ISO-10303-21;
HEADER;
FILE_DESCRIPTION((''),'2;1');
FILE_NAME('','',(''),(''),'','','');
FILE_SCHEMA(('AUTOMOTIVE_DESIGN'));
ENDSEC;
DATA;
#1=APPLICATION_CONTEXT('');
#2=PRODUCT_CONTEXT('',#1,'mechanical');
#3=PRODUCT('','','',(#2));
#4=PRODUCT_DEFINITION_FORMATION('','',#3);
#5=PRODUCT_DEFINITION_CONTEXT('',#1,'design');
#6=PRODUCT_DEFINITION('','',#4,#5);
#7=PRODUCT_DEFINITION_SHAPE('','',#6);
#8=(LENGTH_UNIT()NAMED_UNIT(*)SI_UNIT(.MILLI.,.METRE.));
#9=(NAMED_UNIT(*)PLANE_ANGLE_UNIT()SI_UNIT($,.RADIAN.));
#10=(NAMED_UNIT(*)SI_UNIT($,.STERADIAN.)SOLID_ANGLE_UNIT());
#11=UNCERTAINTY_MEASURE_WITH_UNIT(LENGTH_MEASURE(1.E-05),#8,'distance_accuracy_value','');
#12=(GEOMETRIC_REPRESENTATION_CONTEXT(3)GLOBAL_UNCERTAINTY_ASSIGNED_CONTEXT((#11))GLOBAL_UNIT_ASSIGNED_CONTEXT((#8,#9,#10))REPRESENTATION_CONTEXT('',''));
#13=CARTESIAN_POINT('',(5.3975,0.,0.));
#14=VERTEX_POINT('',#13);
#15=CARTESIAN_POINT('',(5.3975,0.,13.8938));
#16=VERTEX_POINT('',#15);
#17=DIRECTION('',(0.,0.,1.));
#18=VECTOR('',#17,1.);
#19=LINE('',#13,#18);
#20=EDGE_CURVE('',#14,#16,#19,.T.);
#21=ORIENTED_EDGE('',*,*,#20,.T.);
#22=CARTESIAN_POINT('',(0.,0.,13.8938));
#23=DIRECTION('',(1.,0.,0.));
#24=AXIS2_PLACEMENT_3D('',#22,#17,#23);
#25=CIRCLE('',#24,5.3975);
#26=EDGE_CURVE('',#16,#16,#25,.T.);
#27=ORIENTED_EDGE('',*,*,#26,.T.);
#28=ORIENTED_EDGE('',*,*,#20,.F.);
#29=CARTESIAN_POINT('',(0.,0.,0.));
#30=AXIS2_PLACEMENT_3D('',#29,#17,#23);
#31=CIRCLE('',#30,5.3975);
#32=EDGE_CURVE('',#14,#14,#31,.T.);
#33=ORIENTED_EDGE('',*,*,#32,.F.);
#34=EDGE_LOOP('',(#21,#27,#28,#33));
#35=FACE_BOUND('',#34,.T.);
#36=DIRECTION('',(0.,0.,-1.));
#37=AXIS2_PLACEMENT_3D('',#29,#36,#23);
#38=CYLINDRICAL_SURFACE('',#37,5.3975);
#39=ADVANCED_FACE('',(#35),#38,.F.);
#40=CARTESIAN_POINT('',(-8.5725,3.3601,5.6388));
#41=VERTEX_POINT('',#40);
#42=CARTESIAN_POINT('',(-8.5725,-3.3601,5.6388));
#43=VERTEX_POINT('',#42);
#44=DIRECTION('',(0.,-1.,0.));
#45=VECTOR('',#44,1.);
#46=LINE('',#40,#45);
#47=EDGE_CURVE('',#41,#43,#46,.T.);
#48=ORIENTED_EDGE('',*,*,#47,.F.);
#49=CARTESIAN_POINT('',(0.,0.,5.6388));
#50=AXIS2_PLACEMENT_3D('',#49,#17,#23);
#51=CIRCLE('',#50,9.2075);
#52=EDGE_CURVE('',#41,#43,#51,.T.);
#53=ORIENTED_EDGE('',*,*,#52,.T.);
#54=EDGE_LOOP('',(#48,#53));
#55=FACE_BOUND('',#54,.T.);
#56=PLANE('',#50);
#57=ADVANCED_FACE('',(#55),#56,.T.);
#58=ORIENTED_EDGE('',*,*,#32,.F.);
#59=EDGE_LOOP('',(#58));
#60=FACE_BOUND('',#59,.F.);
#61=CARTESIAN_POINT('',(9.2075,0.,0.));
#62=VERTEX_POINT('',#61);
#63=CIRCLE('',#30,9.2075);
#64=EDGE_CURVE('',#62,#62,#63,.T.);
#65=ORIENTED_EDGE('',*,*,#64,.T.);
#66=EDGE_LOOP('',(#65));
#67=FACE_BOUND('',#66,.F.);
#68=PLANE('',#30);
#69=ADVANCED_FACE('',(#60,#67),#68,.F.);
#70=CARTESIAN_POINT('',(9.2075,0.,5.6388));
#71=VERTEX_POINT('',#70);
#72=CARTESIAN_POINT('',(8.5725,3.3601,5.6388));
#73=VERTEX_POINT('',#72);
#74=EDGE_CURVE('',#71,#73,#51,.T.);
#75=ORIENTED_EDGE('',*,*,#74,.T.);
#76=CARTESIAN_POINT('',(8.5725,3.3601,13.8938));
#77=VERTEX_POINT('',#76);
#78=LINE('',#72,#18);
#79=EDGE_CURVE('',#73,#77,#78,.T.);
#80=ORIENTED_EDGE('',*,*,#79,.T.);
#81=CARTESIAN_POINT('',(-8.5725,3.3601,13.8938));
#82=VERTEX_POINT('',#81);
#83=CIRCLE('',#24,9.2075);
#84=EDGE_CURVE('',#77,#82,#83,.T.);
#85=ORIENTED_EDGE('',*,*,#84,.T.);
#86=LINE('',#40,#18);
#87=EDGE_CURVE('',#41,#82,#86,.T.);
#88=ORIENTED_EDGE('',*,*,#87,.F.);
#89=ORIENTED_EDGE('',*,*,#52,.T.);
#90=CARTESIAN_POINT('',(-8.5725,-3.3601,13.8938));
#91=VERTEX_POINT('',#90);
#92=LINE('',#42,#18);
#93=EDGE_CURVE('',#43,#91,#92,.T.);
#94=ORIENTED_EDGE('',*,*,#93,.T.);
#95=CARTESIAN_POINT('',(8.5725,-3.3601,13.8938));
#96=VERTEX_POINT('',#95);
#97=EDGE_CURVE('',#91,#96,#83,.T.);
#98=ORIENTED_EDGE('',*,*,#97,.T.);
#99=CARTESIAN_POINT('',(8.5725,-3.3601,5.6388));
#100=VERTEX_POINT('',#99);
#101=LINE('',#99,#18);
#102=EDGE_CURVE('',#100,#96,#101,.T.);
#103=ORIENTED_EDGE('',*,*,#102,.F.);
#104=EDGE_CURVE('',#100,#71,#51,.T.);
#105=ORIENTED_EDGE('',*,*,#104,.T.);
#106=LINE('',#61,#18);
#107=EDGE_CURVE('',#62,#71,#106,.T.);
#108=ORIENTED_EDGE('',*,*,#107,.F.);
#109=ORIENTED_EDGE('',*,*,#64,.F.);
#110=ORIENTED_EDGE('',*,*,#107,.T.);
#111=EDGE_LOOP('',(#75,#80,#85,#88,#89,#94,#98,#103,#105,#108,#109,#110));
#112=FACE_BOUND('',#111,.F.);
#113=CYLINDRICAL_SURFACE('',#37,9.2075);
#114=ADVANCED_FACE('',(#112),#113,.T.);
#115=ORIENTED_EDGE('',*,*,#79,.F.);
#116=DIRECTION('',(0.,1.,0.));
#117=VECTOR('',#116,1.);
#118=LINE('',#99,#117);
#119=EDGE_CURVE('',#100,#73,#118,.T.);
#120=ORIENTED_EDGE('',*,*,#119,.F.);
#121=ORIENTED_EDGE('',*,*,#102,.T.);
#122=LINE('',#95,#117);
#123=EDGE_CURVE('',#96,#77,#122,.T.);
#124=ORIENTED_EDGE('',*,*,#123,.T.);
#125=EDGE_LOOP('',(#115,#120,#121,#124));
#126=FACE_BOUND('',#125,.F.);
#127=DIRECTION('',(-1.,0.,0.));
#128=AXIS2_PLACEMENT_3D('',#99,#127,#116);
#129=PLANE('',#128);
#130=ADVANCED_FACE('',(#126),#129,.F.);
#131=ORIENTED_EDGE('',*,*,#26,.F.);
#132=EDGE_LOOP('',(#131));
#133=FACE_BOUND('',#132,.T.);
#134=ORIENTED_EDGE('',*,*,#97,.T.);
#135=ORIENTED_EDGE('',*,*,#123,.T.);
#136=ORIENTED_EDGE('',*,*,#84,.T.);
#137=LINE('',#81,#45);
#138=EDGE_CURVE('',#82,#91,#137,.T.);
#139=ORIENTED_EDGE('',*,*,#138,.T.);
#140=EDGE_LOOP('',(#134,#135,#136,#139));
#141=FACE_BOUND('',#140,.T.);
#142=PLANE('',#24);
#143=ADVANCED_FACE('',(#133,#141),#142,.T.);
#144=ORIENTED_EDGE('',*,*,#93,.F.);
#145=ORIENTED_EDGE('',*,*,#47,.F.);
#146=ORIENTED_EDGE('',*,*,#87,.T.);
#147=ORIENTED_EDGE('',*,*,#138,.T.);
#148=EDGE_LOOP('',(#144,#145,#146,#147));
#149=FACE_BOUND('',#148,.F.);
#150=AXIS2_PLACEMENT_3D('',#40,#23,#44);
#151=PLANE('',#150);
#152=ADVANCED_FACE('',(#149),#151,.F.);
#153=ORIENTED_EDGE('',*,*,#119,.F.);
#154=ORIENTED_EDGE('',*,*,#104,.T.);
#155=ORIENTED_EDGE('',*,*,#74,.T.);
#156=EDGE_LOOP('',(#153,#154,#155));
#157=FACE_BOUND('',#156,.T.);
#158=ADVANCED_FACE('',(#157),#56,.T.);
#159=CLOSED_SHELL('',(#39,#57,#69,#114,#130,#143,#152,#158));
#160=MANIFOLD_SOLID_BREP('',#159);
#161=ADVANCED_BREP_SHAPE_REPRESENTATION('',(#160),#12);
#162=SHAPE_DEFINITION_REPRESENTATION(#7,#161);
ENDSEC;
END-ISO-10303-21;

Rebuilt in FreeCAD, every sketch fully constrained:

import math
import FreeCAD as App
import Part
import Sketcher

V = App.Vector
Q = App.Units.Quantity

doc = App.newDocument("Part")
body = doc.addObject("PartDesign::Body", "Body")

# Sketch on XY plane
sketch1 = doc.addObject("Sketcher::SketchObject", "Sketch")
body.addObject(sketch1)
sketch1.AttachmentSupport = (doc.XY_Plane, [""])
sketch1.MapMode = "FlatFace"
sketch1.addGeometry([
    Part.Circle(V(0, 0, 0), V(0, 0, 1), 9),
    Part.Circle(V(0, 0, 0), V(0, 0, 1), 5),
], False)
sketch1.addConstraint([
    Sketcher.Constraint("Coincident", 0, 3, -1, 1),
    Sketcher.Constraint("Coincident", 1, 3, -1, 1),
    Sketcher.Constraint("Diameter", 0, Q("0.725 in")),
    Sketcher.Constraint("Diameter", 1, Q("0.425 in")),
])
pad1 = doc.addObject("PartDesign::Pad", "Pad")
body.addObject(pad1)
pad1.Profile = sketch1
pad1.Length = Q("0.222 in")

# Sketch on XY plane
sketch2 = doc.addObject("Sketcher::SketchObject", "Sketch001")
body.addObject(sketch2)
sketch2.AttachmentSupport = (doc.XY_Plane, [""])
sketch2.MapMode = "FlatFace"
sketch2.AttachmentOffset = App.Placement(V(0, 0, 0.222 * 25.4), App.Rotation())
sketch2.addGeometry([
    Part.LineSegment(V(9, -3, 0), V(9, 3, 0)),  # 0
    Part.ArcOfCircle(Part.Circle(V(0, 0, 0), V(0, 0, 1), 9), math.radians(21), math.radians(159)),  # 1
    Part.LineSegment(V(-9, 3, 0), V(-9, -3, 0)),  # 2
    Part.ArcOfCircle(Part.Circle(V(0, 0, 0), V(0, 0, 1), 9), math.radians(-159), math.radians(-21)),  # 3
    Part.Circle(V(0, 0, 0), V(0, 0, 1), 5),  # 4
], False)
sketch2.addConstraint([
    Sketcher.Constraint("Coincident", 0, 2, 1, 1),
    Sketcher.Constraint("Coincident", 1, 2, 2, 1),
    Sketcher.Constraint("Coincident", 2, 2, 3, 1),
    Sketcher.Constraint("Coincident", 3, 2, 0, 1),
    Sketcher.Constraint("Vertical", 0),
    Sketcher.Constraint("Vertical", 2),
    Sketcher.Constraint("Coincident", 1, 3, -1, 1),
    Sketcher.Constraint("Coincident", 3, 3, -1, 1),
    Sketcher.Constraint("Coincident", 4, 3, -1, 1),
    Sketcher.Constraint("Equal", 1, 3),
    Sketcher.Constraint("Horizontal", 0, 2, 1, 2),
    Sketcher.Constraint("Diameter", 4, Q("0.425 in")),
    Sketcher.Constraint("DistanceX", 1, 2, 0, 2, Q("0.675 in")),
    Sketcher.Constraint("Radius", 1, Q("0.3625 in")),
])
pad2 = doc.addObject("PartDesign::Pad", "Pad001")
body.addObject(pad2)
pad2.Profile = sketch2
pad2.Length = Q("0.325 in")

doc.recompute()
